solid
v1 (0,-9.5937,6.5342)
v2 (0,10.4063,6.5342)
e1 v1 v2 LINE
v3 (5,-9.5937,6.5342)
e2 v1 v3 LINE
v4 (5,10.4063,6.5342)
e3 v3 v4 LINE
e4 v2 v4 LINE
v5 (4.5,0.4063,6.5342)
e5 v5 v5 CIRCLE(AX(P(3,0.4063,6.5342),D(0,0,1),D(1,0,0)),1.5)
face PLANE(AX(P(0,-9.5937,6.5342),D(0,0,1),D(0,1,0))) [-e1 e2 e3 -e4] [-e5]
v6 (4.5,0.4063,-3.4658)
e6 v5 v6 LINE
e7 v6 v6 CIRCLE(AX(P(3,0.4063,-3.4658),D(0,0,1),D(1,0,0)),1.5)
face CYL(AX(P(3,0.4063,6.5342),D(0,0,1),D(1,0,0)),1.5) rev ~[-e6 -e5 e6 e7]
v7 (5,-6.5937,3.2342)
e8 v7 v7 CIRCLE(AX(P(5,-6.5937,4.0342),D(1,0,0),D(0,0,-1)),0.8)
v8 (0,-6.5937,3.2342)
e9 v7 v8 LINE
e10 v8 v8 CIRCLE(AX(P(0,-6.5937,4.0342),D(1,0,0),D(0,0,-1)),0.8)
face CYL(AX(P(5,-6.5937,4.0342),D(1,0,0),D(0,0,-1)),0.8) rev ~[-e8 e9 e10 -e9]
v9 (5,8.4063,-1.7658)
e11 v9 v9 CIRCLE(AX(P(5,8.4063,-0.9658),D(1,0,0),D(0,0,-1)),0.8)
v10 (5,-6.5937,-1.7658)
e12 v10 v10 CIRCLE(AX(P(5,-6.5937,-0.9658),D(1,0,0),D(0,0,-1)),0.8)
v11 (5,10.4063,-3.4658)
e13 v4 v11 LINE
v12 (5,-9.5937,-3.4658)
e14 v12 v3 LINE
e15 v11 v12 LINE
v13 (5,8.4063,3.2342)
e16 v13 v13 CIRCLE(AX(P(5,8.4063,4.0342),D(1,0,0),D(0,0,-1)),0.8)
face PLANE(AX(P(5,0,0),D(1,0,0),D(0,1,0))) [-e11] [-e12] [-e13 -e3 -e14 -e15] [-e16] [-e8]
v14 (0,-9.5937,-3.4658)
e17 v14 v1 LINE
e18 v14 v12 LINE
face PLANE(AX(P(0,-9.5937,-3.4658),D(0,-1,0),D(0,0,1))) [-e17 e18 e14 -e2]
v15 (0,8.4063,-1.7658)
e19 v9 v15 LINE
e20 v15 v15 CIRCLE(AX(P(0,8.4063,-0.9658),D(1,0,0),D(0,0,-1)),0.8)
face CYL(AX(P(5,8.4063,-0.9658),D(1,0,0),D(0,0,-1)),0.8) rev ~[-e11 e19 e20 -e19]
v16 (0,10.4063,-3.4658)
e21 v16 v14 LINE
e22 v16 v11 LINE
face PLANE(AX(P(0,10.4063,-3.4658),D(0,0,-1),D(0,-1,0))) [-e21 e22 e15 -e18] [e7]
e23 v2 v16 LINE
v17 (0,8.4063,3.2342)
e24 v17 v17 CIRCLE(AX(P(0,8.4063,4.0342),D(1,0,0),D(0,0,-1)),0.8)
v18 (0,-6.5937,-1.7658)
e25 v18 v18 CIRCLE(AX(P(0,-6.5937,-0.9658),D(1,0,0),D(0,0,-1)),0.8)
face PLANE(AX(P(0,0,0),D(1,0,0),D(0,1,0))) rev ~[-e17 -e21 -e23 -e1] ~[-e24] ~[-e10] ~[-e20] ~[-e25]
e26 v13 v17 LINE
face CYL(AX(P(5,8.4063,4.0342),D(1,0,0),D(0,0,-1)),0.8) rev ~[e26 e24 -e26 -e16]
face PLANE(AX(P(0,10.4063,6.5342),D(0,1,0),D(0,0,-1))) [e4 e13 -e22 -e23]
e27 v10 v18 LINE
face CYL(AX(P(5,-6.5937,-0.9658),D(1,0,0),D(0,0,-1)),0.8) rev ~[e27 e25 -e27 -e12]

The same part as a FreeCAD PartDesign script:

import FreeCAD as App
import Part
import Sketcher

V = App.Vector


def add_polygon(sketch, points):
    """Adds a closed chain of lines whose ends are joined by coincident constraints."""
    first, n = sketch.GeometryCount, len(points)
    for a, b in zip(points, points[1:] + points[:1]):
        sketch.addGeometry(Part.LineSegment(App.Vector(*a, 0), App.Vector(*b, 0)), False)
    for i in range(n):
        sketch.addConstraint(Sketcher.Constraint("Coincident", first + i, 2, first + (i + 1) % n, 1))

doc = App.newDocument("Part")
body = doc.addObject("PartDesign::Body", "Body")

# Sketch on YZ plane
sketch1 = body.newObject("Sketcher::SketchObject", "Sketch")
sketch1.AttachmentSupport = (doc.getObject("YZ_Plane"), [""])
sketch1.MapMode = "FlatFace"
add_polygon(sketch1, [(10, 7), (-10, 7), (-10, -3), (10, -3)])  # lines 0-3
sketch1.addConstraint([
    Sketcher.Constraint("Horizontal", 0),
    Sketcher.Constraint("Vertical", 1),
    Sketcher.Constraint("Horizontal", 2),
    Sketcher.Constraint("Vertical", 3),
    Sketcher.Constraint("DistanceX", 0, 2, 0, 1, 20.0),
    Sketcher.Constraint("DistanceY", 1, 2, 1, 1, 10.0),
    Sketcher.Constraint("DistanceX", 0, 2, -1, 1, 9.5937),
    Sketcher.Constraint("DistanceY", -1, 1, 0, 2, 6.5342),
])
pad1 = body.newObject("PartDesign::Pad", "Pad")
pad1.Profile = sketch1
pad1.Length = 5

# Sketch on XY plane
sketch2 = body.newObject("Sketcher::SketchObject", "Sketch001")
sketch2.AttachmentSupport = (doc.getObject("XY_Plane"), [""])
sketch2.MapMode = "FlatFace"
sketch2.AttachmentOffset = App.Placement(V(0, 0, 6.5342), App.Rotation())
sketch2.addGeometry(Part.Circle(V(3, 0.4, 0), V(0, 0, 1), 1.5), False)
sketch2.addConstraint([
    Sketcher.Constraint("Diameter", 0, 3.0),
    Sketcher.Constraint("DistanceX", -1, 1, 0, 3, 3.0),
    Sketcher.Constraint("DistanceY", -1, 1, 0, 3, 0.4063),
])
pocket1 = body.newObject("PartDesign::Pocket", "Pocket")
pocket1.Profile = sketch2
pocket1.Type = "ThroughAll"

# Sketch on YZ plane
sketch3 = body.newObject("Sketcher::SketchObject", "Sketch002")
sketch3.AttachmentSupport = (doc.getObject("YZ_Plane"), [""])
sketch3.MapMode = "FlatFace"
sketch3.AttachmentOffset = App.Placement(V(0, 0, 5), App.Rotation())
sketch3.addGeometry([
    Part.Circle(V(-6.6, 4, 0), V(0, 0, 1), 0.8),
    Part.Circle(V(-6.6, -1, 0), V(0, 0, 1), 0.8),
    Part.Circle(V(8.4, 4, 0), V(0, 0, 1), 0.8),
    Part.Circle(V(8.4, -1, 0), V(0, 0, 1), 0.8),
], False)
sketch3.addConstraint([
    Sketcher.Constraint("Equal", 0, 1),
    Sketcher.Constraint("Equal", 1, 2),
    Sketcher.Constraint("Equal", 2, 3),
    Sketcher.Constraint("Horizontal", 0, 3, 2, 3),
    Sketcher.Constraint("Horizontal", 1, 3, 3, 3),
    Sketcher.Constraint("Vertical", 0, 3, 1, 3),
    Sketcher.Constraint("Vertical", 2, 3, 3, 3),
    Sketcher.Constraint("Diameter", 0, 1.6),
    Sketcher.Constraint("DistanceX", 0, 3, 2, 3, 15.0),
    Sketcher.Constraint("DistanceY", 1, 3, 0, 3, 5.0),
    Sketcher.Constraint("DistanceX", 0, 3, -1, 1, 6.5937),
    Sketcher.Constraint("DistanceY", -1, 1, 0, 3, 4.0342),
])
pocket2 = body.newObject("PartDesign::Pocket", "Pocket001")
pocket2.Profile = sketch3
pocket2.Type = "ThroughAll"

doc.recompute()
